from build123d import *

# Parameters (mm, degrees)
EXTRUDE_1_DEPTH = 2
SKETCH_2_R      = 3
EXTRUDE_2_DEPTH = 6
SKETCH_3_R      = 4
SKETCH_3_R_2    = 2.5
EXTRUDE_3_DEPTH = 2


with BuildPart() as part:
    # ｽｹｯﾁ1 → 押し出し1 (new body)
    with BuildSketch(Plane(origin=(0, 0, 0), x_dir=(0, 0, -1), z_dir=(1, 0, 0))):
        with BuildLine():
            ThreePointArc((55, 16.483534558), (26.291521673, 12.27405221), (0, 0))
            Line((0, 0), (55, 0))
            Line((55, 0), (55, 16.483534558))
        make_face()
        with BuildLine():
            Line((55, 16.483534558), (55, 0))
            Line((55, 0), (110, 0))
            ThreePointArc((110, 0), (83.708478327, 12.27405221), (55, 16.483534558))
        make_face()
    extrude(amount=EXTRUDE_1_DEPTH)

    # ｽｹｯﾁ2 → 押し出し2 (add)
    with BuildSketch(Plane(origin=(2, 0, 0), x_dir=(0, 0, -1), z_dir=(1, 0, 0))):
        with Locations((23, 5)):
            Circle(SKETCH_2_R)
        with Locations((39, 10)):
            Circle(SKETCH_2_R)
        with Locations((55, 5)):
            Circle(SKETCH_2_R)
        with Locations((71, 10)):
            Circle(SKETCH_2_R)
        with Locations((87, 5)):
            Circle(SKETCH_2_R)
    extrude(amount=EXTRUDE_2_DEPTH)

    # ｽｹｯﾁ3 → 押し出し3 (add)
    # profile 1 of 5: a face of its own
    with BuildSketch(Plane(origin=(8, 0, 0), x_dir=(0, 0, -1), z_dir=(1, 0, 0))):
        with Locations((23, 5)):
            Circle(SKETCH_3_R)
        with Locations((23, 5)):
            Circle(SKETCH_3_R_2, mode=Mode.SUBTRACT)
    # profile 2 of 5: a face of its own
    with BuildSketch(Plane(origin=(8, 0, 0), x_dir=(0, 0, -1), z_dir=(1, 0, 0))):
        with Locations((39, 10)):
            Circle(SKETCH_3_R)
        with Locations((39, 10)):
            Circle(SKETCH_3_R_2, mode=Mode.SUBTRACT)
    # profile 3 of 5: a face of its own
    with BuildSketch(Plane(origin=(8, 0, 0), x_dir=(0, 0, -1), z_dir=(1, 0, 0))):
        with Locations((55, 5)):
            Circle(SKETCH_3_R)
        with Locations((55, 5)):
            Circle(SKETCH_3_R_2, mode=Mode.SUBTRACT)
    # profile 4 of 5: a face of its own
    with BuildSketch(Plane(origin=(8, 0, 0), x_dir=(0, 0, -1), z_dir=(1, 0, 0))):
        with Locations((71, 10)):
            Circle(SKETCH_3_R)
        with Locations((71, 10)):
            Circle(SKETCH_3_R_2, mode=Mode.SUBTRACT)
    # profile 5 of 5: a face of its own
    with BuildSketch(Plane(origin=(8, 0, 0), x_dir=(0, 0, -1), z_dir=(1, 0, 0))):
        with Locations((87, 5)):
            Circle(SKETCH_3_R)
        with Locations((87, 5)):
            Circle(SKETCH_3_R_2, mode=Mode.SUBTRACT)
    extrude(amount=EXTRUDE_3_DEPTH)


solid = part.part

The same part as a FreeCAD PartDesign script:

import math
import FreeCAD as App
import Part
import Sketcher

V = App.Vector
Q = App.Units.Quantity

doc = App.newDocument("Part")
body = doc.addObject("PartDesign::Body", "Body")

sketch1 = doc.addObject("Sketcher::SketchObject", "Sketch")
body.addObject(sketch1)
sketch1.AttachmentSupport = (doc.YZ_Plane, [""])
sketch1.MapMode = "FlatFace"
sketch1.addGeometry(Part.ArcOfCircle(Part.Circle(V(-83.516465, -55, 0), V(0, 0, 1), 100), math.radians(0), math.radians(33.367013)), False)
sketch1.addGeometry(Part.LineSegment(V(0, 0, 0), V(0, -110, 0)), False)
sketch1.addGeometry(Part.ArcOfCircle(Part.Circle(V(-83.516465, -55, 0), V(0, 0, 1), 100), math.radians(-33.367013), math.radians(0)), False)
sketch1.addConstraint(Sketcher.Constraint("Coincident", 0, 2, 1, 1))
sketch1.addConstraint(Sketcher.Constraint("Coincident", 1, 2, 2, 1))
sketch1.addConstraint(Sketcher.Constraint("Tangent", 2, 2, 0, 1))
sketch1.addConstraint(Sketcher.Constraint("Vertical", 1))
sketch1.addConstraint(Sketcher.Constraint("Coincident", 0, 2, -1, 1))
sketch1.addConstraint(Sketcher.Constraint("Equal", 0, 2))
sketch1.addConstraint(Sketcher.Constraint("Horizontal", 0, 3, 2, 2))
sketch1.addConstraint(Sketcher.Constraint("Radius", 0, Q("100 mm")))
sketch1.addConstraint(Sketcher.Constraint("DistanceY", 1, 2, 1, 1, Q("110 mm")))
pad1 = doc.addObject("PartDesign::Pad", "Pad")
body.addObject(pad1)
pad1.Profile = sketch1
pad1.Length = 2

sketch2 = doc.addObject("Sketcher::SketchObject", "Sketch001")
body.addObject(sketch2)
sketch2.AttachmentSupport = (doc.YZ_Plane, [""])
sketch2.MapMode = "FlatFace"
sketch2.AttachmentOffset = App.Placement(V(0, 0, 2), App.Rotation())
sketch2.addGeometry(Part.Circle(V(5, -23, 0), V(0, 0, 1), 3), False)
sketch2.addGeometry(Part.Circle(V(10, -39, 0), V(0, 0, 1), 3), False)
sketch2.addGeometry(Part.Circle(V(5, -55, 0), V(0, 0, 1), 3), False)
sketch2.addGeometry(Part.Circle(V(10, -71, 0), V(0, 0, 1), 3), False)
sketch2.addGeometry(Part.Circle(V(5, -87, 0), V(0, 0, 1), 3), False)
sketch2.addConstraint(Sketcher.Constraint("Equal", 0, 1))
sketch2.addConstraint(Sketcher.Constraint("Equal", 1, 2))
sketch2.addConstraint(Sketcher.Constraint("Equal", 2, 3))
sketch2.addConstraint(Sketcher.Constraint("Equal", 3, 4))
sketch2.addConstraint(Sketcher.Constraint("Vertical", 0, 3, 2, 3))
sketch2.addConstraint(Sketcher.Constraint("Vertical", 1, 3, 3, 3))
sketch2.addConstraint(Sketcher.Constraint("Vertical", 2, 3, 4, 3))
sketch2.addConstraint(Sketcher.Constraint("Diameter", 0, Q("6 mm")))
sketch2.addConstraint(Sketcher.Constraint("DistanceX", -1, 1, 0, 3, Q("5 mm")))
sketch2.addConstraint(Sketcher.Constraint("DistanceY", 0, 3, -1, 1, Q("23 mm")))
sketch2.addConstraint(Sketcher.Constraint("DistanceX", -1, 1, 1, 3, Q("10 mm")))
sketch2.addConstraint(Sketcher.Constraint("DistanceY", 1, 3, -1, 1, Q("39 mm")))
sketch2.addConstraint(Sketcher.Constraint("DistanceY", 2, 3, -1, 1, Q("55 mm")))
sketch2.addConstraint(Sketcher.Constraint("DistanceY", 3, 3, -1, 1, Q("71 mm")))
sketch2.addConstraint(Sketcher.Constraint("DistanceY", 4, 3, -1, 1, Q("87 mm")))
pad2 = doc.addObject("PartDesign::Pad", "Pad001")
body.addObject(pad2)
pad2.Profile = sketch2
pad2.Length = 6

sketch3 = doc.addObject("Sketcher::SketchObject", "Sketch002")
body.addObject(sketch3)
sketch3.AttachmentSupport = (doc.YZ_Plane, [""])
sketch3.MapMode = "FlatFace"
sketch3.AttachmentOffset = App.Placement(V(0, 0, 8), App.Rotation())
sketch3.addGeometry(Part.Circle(V(5, -23, 0), V(0, 0, 1), 4), False)
sketch3.addGeometry(Part.Circle(V(5, -23, 0), V(0, 0, 1), 2.5), False)
sketch3.addGeometry(Part.Circle(V(10, -39, 0), V(0, 0, 1), 4), False)
sketch3.addGeometry(Part.Circle(V(10, -39, 0), V(0, 0, 1), 2.5), False)
sketch3.addGeometry(Part.Circle(V(5, -55, 0), V(0, 0, 1), 4), False)
sketch3.addGeometry(Part.Circle(V(5, -55, 0), V(0, 0, 1), 2.5), False)
sketch3.addGeometry(Part.Circle(V(10, -71, 0), V(0, 0, 1), 4), False)
sketch3.addGeometry(Part.Circle(V(10, -71, 0), V(0, 0, 1), 2.5), False)
sketch3.addGeometry(Part.Circle(V(5, -87, 0), V(0, 0, 1), 4), False)
sketch3.addGeometry(Part.Circle(V(5, -87, 0), V(0, 0, 1), 2.5), False)
sketch3.addConstraint(Sketcher.Constraint("Coincident", 1, 3, 0, 3))
sketch3.addConstraint(Sketcher.Constraint("Coincident", 3, 3, 2, 3))
sketch3.addConstraint(Sketcher.Constraint("Coincident", 5, 3, 4, 3))
sketch3.addConstraint(Sketcher.Constraint("Coincident", 7, 3, 6, 3))
sketch3.addConstraint(Sketcher.Constraint("Coincident", 9, 3, 8, 3))
sketch3.addConstraint(Sketcher.Constraint("Equal", 0, 2))
sketch3.addConstraint(Sketcher.Constraint("Equal", 1, 3))
sketch3.addConstraint(Sketcher.Constraint("Equal", 2, 4))
sketch3.addConstraint(Sketcher.Constraint("Equal", 3, 5))
sketch3.addConstraint(Sketcher.Constraint("Equal", 4, 6))
sketch3.addConstraint(Sketcher.Constraint("Equal", 5, 7))
sketch3.addConstraint(Sketcher.Constraint("Equal", 6, 8))
sketch3.addConstraint(Sketcher.Constraint("Equal", 7, 9))
sketch3.addConstraint(Sketcher.Constraint("Vertical", 1, 3, 4, 3))
sketch3.addConstraint(Sketcher.Constraint("Vertical", 3, 3, 6, 3))
sketch3.addConstraint(Sketcher.Constraint("Vertical", 5, 3, 8, 3))
sketch3.addConstraint(Sketcher.Constraint("Diameter", 0, Q("8 mm")))
sketch3.addConstraint(Sketcher.Constraint("Diameter", 1, Q("5 mm")))
sketch3.addConstraint(Sketcher.Constraint("DistanceX", -1, 1, 0, 3, Q("5 mm")))
sketch3.addConstraint(Sketcher.Constraint("DistanceY", 0, 3, -1, 1, Q("23 mm")))
sketch3.addConstraint(Sketcher.Constraint("DistanceX", -1, 1, 2, 3, Q("10 mm")))
sketch3.addConstraint(Sketcher.Constraint("DistanceY", 2, 3, -1, 1, Q("39 mm")))
sketch3.addConstraint(Sketcher.Constraint("DistanceY", 4, 3, -1, 1, Q("55 mm")))
sketch3.addConstraint(Sketcher.Constraint("DistanceY", 6, 3, -1, 1, Q("71 mm")))
sketch3.addConstraint(Sketcher.Constraint("DistanceY", 8, 3, -1, 1, Q("87 mm")))
pad3 = doc.addObject("PartDesign::Pad", "Pad002")
body.addObject(pad3)
pad3.Profile = sketch3
pad3.Length = 2

doc.recompute()
